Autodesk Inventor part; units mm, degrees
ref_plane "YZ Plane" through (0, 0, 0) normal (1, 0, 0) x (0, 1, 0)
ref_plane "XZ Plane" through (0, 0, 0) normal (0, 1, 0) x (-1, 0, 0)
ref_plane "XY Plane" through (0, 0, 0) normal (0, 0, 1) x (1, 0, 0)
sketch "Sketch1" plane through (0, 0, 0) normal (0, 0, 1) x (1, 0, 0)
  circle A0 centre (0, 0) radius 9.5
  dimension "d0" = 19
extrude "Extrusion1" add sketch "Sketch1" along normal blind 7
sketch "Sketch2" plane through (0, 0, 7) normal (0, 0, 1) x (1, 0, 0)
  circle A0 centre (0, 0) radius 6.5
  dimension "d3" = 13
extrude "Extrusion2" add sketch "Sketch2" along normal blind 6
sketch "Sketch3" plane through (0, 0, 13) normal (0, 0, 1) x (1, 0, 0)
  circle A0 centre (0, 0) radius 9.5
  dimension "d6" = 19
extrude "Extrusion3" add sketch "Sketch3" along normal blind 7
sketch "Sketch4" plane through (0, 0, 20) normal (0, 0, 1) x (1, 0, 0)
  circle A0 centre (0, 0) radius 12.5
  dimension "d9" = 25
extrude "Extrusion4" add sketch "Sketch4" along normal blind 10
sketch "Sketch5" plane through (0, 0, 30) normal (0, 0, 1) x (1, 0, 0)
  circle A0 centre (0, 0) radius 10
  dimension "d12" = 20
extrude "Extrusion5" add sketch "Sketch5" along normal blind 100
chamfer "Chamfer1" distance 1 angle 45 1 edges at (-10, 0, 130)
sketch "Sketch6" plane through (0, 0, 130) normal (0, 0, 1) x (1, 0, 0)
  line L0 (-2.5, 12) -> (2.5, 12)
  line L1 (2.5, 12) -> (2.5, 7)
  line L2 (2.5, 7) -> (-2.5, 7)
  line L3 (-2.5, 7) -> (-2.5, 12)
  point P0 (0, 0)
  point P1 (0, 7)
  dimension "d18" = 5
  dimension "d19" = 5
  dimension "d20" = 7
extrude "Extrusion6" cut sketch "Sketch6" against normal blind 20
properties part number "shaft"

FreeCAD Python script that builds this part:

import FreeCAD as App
import Part
import Sketcher
from FreeCAD import Vector
Q = App.Units.Quantity


def edges_at(feature, points):
    """Names of the edges that pass closest to the given points."""
    edges = feature.Shape.Edges
    near = lambda p: min(range(len(edges)), key=lambda i: edges[i].distToShape(Part.Vertex(*p))[0])
    return sorted({f"Edge{near(p) + 1}" for p in points})

doc = App.newDocument("Part")
body = doc.addObject("PartDesign::Body", "Body")

# Sketch on XY plane
sketch1 = body.newObject("Sketcher::SketchObject", "Sketch")
sketch1.AttachmentSupport = (doc.getObject("XY_Plane"), [""])
sketch1.MapMode = "FlatFace"
sketch1.addGeometry(Part.Circle(Vector(0, 0, 0), Vector(0, 0, 1), 9.5), False)
sketch1.addConstraint(Sketcher.Constraint("Coincident", 0, 3, -1, 1))
sketch1.addConstraint(Sketcher.Constraint("Diameter", 0, Q("19 mm")))
pad1 = body.newObject("PartDesign::Pad", "Pad")
pad1.Profile = sketch1
pad1.Length = 7

# Sketch on XY plane
sketch2 = body.newObject("Sketcher::SketchObject", "Sketch001")
sketch2.AttachmentSupport = (doc.getObject("XY_Plane"), [""])
sketch2.MapMode = "FlatFace"
sketch2.AttachmentOffset = App.Placement(Vector(0, 0, 7), App.Rotation())
sketch2.addGeometry(Part.Circle(Vector(0, 0, 0), Vector(0, 0, 1), 6.5), False)
sketch2.addConstraint(Sketcher.Constraint("Coincident", 0, 3, -1, 1))
sketch2.addConstraint(Sketcher.Constraint("Diameter", 0, Q("13 mm")))
pad2 = body.newObject("PartDesign::Pad", "Pad001")
pad2.Profile = sketch2
pad2.Length = 6

# Sketch on XY plane
sketch3 = body.newObject("Sketcher::SketchObject", "Sketch002")
sketch3.AttachmentSupport = (doc.getObject("XY_Plane"), [""])
sketch3.MapMode = "FlatFace"
sketch3.AttachmentOffset = App.Placement(Vector(0, 0, 13), App.Rotation())
sketch3.addGeometry(Part.Circle(Vector(0, 0, 0), Vector(0, 0, 1), 9.5), False)
sketch3.addConstraint(Sketcher.Constraint("Coincident", 0, 3, -1, 1))
sketch3.addConstraint(Sketcher.Constraint("Diameter", 0, Q("19 mm")))
pad3 = body.newObject("PartDesign::Pad", "Pad002")
pad3.Profile = sketch3
pad3.Length = 7

# Sketch on XY plane
sketch4 = body.newObject("Sketcher::SketchObject", "Sketch003")
sketch4.AttachmentSupport = (doc.getObject("XY_Plane"), [""])
sketch4.MapMode = "FlatFace"
sketch4.AttachmentOffset = App.Placement(Vector(0, 0, 20), App.Rotation())
sketch4.addGeometry(Part.Circle(Vector(0, 0, 0), Vector(0, 0, 1), 12.5), False)
sketch4.addConstraint(Sketcher.Constraint("Coincident", 0, 3, -1, 1))
sketch4.addConstraint(Sketcher.Constraint("Diameter", 0, Q("25 mm")))
pad4 = body.newObject("PartDesign::Pad", "Pad003")
pad4.Profile = sketch4
pad4.Length = 10

# Sketch on XY plane
sketch5 = body.newObject("Sketcher::SketchObject", "Sketch004")
sketch5.AttachmentSupport = (doc.getObject("XY_Plane"), [""])
sketch5.MapMode = "FlatFace"
sketch5.AttachmentOffset = App.Placement(Vector(0, 0, 30), App.Rotation())
sketch5.addGeometry(Part.Circle(Vector(0, 0, 0), Vector(0, 0, 1), 10), False)
sketch5.addConstraint(Sketcher.Constraint("Coincident", 0, 3, -1, 1))
sketch5.addConstraint(Sketcher.Constraint("Diameter", 0, Q("20 mm")))
pad5 = body.newObject("PartDesign::Pad", "Pad004")
pad5.Profile = sketch5
pad5.Length = 100
doc.recompute()

chamfer = body.newObject("PartDesign::Chamfer", "Chamfer")
chamfer.Base = (pad5, edges_at(pad5, [(-10, 0, 130)]))
chamfer.Size = 1

# Sketch on XY plane
sketch6 = body.newObject("Sketcher::SketchObject", "Sketch005")
sketch6.AttachmentSupport = (doc.getObject("XY_Plane"), [""])
sketch6.MapMode = "FlatFace"
sketch6.AttachmentOffset = App.Placement(Vector(0, 0, 130), App.Rotation())
sketch6.addGeometry(Part.LineSegment(Vector(2.5, 12, 0), Vector(-2.5, 12, 0)), False)
sketch6.addGeometry(Part.LineSegment(Vector(-2.5, 12, 0), Vector(-2.5, 7, 0)), False)
sketch6.addGeometry(Part.LineSegment(Vector(-2.5, 7, 0), Vector(2.5, 7, 0)), False)
sketch6.addGeometry(Part.LineSegment(Vector(2.5, 7, 0), Vector(2.5, 12, 0)), False)
sketch6.addConstraint(Sketcher.Constraint("Coincident", 0, 2, 1, 1))
sketch6.addConstraint(Sketcher.Constraint("Coincident", 1, 2, 2, 1))
sketch6.addConstraint(Sketcher.Constraint("Coincident", 2, 2, 3, 1))
sketch6.addConstraint(Sketcher.Constraint("Coincident", 3, 2, 0, 1))
sketch6.addConstraint(Sketcher.Constraint("Horizontal", 0))
sketch6.addConstraint(Sketcher.Constraint("Vertical", 1))
sketch6.addConstraint(Sketcher.Constraint("Horizontal", 2))
sketch6.addConstraint(Sketcher.Constraint("Vertical", 3))
sketch6.addConstraint(Sketcher.Constraint("Equal", 2, 1))
sketch6.addConstraint(Sketcher.Constraint("DistanceX", 0, 2, 0, 1, Q("5 mm")))
sketch6.addConstraint(Sketcher.Constraint("DistanceY", -1, 1, 1, 2, Q("7 mm")))
sketch6.addConstraint(Sketcher.Constraint("DistanceX", 0, 2, -1, 1, Q("2.5 mm")))
pocket1 = body.newObject("PartDesign::Pocket", "Pocket")
pocket1.Profile = sketch6
pocket1.Length = 20

doc.recompute()
